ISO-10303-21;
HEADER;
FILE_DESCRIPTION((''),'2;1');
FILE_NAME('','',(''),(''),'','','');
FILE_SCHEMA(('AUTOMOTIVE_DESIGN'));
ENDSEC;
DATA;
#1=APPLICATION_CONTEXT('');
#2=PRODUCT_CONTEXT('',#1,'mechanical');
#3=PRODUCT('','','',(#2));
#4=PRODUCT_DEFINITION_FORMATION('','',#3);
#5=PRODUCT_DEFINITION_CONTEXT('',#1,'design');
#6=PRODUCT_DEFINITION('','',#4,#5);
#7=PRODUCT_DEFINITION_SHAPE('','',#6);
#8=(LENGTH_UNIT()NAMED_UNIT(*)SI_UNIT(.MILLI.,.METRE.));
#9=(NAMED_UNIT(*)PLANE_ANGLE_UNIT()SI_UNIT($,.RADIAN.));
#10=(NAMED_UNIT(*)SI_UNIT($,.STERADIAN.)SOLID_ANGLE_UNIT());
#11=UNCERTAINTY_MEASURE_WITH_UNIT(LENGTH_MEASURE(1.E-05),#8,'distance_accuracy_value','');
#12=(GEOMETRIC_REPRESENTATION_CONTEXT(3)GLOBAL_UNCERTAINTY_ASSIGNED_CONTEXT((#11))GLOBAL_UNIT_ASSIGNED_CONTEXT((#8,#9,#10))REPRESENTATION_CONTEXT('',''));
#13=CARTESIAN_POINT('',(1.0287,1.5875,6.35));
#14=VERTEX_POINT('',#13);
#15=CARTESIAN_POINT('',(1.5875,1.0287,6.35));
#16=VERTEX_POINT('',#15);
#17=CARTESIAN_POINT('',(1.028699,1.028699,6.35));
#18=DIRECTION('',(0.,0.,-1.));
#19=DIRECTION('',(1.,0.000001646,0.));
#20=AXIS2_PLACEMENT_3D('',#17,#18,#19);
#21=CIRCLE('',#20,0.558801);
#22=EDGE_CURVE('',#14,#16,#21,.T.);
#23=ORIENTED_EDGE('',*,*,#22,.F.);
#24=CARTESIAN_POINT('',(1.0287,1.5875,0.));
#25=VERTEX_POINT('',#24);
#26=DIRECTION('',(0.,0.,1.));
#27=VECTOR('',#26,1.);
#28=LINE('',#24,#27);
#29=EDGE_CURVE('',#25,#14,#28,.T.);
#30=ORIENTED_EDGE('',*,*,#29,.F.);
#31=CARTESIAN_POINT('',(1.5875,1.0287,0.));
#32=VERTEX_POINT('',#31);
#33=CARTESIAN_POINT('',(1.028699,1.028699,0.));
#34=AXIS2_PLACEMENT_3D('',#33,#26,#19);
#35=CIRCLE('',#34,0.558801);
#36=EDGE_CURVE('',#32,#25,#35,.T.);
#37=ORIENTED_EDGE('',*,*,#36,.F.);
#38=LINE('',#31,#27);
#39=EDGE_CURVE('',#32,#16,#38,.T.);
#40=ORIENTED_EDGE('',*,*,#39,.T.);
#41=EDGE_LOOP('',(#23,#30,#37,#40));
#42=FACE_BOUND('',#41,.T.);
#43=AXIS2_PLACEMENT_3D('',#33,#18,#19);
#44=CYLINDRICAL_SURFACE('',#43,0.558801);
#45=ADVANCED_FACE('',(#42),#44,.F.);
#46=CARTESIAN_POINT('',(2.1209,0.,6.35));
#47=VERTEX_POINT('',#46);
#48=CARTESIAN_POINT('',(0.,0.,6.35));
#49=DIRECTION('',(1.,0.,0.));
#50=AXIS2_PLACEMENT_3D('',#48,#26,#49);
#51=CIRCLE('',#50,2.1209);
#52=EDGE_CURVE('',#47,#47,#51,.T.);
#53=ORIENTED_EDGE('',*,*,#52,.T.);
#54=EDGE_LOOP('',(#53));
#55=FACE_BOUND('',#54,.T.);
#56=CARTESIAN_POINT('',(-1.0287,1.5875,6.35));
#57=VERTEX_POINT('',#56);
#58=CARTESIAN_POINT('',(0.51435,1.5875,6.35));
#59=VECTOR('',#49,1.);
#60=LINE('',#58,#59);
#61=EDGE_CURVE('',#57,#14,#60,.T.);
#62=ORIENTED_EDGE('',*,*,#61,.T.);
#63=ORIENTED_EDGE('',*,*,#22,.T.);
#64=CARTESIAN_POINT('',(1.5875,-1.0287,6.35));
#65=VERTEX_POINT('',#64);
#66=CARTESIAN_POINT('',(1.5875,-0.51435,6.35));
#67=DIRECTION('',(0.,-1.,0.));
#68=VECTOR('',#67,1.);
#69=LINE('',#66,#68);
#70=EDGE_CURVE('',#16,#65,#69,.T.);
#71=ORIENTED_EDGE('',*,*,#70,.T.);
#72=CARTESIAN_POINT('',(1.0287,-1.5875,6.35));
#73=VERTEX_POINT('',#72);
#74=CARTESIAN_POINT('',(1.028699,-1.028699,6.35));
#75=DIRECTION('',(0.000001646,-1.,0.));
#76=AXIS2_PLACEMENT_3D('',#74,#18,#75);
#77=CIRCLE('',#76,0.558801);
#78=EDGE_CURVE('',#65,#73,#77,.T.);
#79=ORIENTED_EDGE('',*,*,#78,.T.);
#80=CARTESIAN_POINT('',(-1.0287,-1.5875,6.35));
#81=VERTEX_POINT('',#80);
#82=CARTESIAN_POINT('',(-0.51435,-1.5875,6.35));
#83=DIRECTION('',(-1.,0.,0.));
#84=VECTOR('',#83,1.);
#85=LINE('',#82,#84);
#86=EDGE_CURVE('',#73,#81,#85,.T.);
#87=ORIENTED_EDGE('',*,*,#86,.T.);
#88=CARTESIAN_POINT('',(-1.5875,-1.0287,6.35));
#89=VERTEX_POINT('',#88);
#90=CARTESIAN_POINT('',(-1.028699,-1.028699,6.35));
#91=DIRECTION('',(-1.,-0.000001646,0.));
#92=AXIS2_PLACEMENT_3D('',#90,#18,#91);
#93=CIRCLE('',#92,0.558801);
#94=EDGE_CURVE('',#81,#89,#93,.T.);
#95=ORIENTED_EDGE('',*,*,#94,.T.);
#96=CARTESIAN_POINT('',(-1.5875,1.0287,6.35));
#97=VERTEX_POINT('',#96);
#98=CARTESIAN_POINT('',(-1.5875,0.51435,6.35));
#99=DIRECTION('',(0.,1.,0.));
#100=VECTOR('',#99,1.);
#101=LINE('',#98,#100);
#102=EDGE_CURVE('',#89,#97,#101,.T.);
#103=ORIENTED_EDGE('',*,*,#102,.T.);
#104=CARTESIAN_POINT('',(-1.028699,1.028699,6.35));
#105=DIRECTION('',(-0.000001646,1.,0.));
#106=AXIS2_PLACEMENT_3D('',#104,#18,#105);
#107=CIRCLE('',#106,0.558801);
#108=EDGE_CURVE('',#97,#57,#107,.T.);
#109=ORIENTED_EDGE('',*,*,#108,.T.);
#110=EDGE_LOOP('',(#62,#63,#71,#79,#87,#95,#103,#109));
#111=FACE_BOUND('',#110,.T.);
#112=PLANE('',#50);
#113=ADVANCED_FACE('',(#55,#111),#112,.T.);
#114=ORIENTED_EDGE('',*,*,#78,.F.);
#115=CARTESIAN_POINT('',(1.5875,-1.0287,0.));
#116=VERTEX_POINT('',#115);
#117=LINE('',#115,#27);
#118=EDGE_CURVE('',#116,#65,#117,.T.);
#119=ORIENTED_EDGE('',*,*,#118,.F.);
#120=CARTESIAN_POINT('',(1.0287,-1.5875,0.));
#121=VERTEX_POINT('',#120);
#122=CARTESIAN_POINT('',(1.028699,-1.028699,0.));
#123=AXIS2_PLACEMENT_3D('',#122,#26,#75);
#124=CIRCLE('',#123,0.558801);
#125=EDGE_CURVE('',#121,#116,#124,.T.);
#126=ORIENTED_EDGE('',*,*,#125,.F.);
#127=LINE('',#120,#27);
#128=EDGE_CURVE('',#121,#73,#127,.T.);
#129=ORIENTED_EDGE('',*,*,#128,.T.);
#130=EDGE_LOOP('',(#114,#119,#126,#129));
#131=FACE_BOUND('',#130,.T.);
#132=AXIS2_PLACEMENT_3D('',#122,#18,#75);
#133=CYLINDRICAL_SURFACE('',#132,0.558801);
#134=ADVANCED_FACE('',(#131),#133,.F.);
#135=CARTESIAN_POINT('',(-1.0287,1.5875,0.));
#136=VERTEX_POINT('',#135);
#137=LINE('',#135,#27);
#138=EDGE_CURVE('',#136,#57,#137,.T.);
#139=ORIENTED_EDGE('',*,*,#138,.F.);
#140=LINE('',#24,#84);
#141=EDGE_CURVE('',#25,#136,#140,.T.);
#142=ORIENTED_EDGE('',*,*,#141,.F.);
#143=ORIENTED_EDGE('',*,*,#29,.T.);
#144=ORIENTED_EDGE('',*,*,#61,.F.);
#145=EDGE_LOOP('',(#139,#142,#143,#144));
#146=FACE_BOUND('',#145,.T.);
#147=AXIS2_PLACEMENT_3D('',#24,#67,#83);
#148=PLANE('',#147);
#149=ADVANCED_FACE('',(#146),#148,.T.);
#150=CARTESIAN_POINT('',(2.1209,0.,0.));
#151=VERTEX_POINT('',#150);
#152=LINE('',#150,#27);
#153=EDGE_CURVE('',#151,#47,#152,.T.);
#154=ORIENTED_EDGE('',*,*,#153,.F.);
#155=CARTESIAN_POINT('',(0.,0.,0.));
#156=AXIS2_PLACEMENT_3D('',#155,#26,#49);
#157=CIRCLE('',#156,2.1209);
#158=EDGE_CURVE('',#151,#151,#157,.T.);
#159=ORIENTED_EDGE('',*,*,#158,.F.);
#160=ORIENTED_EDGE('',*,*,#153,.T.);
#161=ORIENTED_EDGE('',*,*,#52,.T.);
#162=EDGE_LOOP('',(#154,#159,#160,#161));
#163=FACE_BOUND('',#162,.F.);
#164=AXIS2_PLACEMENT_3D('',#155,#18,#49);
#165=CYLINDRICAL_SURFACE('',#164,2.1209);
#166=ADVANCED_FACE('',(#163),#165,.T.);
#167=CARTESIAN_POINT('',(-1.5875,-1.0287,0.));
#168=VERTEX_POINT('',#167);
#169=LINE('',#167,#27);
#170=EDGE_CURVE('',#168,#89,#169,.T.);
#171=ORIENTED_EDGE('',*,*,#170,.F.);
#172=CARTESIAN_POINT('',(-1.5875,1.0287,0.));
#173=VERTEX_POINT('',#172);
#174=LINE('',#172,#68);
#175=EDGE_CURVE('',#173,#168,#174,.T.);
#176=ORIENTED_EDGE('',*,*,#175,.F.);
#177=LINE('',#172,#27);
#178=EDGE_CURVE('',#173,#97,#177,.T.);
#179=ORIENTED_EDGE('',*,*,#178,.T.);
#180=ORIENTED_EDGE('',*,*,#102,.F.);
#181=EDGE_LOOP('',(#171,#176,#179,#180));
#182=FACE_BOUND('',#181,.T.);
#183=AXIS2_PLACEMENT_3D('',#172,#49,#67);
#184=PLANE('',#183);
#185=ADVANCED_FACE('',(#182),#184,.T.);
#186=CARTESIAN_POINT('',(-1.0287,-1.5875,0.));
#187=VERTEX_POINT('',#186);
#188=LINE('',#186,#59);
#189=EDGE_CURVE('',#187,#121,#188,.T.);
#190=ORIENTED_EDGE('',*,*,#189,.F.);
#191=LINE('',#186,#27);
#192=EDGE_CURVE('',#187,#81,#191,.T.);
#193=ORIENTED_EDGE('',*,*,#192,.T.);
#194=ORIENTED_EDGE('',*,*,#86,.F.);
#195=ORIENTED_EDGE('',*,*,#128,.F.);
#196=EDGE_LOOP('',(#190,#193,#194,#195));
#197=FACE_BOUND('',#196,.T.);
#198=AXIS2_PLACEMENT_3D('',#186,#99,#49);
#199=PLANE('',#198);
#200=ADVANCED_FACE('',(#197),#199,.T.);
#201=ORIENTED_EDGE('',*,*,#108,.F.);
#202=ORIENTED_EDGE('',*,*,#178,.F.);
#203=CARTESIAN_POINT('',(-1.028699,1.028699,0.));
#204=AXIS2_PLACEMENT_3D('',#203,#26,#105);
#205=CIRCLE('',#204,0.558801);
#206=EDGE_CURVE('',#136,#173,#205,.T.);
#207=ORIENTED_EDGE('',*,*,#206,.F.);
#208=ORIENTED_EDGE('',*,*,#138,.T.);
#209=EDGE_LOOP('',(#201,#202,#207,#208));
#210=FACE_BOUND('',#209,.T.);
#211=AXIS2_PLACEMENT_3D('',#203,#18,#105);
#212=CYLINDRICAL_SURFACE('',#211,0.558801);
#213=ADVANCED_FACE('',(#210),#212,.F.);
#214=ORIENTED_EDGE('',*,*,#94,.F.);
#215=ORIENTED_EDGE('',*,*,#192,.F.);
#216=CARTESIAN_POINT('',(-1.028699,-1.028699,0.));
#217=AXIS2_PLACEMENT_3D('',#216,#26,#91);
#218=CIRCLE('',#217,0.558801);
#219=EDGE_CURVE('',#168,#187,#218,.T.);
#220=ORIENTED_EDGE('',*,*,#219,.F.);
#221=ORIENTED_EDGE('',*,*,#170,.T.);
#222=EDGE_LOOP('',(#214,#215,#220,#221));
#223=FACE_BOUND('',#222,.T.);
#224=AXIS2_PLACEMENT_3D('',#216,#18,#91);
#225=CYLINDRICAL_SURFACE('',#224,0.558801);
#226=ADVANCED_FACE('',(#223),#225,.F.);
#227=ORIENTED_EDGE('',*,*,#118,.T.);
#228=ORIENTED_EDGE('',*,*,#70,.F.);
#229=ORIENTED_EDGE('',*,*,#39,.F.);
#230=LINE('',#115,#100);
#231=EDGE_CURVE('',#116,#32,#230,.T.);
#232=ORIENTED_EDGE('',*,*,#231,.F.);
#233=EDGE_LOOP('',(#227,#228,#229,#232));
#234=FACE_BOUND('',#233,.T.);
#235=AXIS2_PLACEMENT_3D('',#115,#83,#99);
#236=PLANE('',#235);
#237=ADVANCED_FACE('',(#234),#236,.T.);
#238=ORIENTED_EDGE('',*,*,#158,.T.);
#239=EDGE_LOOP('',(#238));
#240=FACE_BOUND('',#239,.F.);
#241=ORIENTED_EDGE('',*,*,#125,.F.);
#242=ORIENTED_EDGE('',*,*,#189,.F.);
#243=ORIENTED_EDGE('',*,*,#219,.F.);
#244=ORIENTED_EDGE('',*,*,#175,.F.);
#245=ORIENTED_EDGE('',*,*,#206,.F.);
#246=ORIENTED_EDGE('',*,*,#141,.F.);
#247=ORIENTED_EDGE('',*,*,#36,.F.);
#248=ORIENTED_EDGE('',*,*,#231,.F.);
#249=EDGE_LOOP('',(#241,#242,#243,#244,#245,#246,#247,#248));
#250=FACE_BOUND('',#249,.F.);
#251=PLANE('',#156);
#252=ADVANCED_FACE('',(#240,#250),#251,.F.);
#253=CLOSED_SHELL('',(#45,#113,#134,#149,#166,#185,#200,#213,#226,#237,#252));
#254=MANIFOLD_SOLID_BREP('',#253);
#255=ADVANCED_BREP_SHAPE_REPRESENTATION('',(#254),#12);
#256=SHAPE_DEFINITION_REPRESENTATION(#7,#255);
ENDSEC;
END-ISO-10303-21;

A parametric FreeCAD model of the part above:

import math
import FreeCAD as App
import Part
import Sketcher
Q = App.Units.Quantity

doc = App.newDocument("Part")
body = doc.addObject("PartDesign::Body", "Body")

# Sketch on XY plane
sketch1 = body.newObject("Sketcher::SketchObject", "Sketch")
sketch1.AttachmentSupport = (doc.getObject("XY_Plane"), [""])
sketch1.MapMode = "FlatFace"
sketch1.addGeometry(Part.Circle(App.Vector(0, 0, 0), App.Vector(0, 0, 1), 2.1), False)
sketch1.addConstraint([
    Sketcher.Constraint("Coincident", 0, 3, -1, 1),
    Sketcher.Constraint("Diameter", 0, Q("0.167 in")),
])
pad1 = body.newObject("PartDesign::Pad", "Pad")
pad1.Profile = sketch1
pad1.Length = Q("0.25 in")

# Sketch on XY plane
sketch2 = body.newObject("Sketcher::SketchObject", "Sketch001")
sketch2.AttachmentSupport = (doc.getObject("XY_Plane"), [""])
sketch2.MapMode = "FlatFace"
sketch2.addGeometry([
    Part.LineSegment(App.Vector(1, 1.6, 0), App.Vector(-1, 1.6, 0)),  # 0
    Part.ArcOfCircle(Part.Circle(App.Vector(-1, 1, 0), App.Vector(0, 0, 1), 0.6), math.radians(90), math.radians(180)),  # 1
    Part.LineSegment(App.Vector(-1.6, 1, 0), App.Vector(-1.6, -1, 0)),  # 2
    Part.ArcOfCircle(Part.Circle(App.Vector(-1, -1, 0), App.Vector(0, 0, 1), 0.6), math.radians(-180), math.radians(-90)),  # 3
    Part.LineSegment(App.Vector(-1, -1.6, 0), App.Vector(1, -1.6, 0)),  # 4
    Part.ArcOfCircle(Part.Circle(App.Vector(1, -1, 0), App.Vector(0, 0, 1), 0.6), math.radians(-90), math.radians(0)),  # 5
    Part.LineSegment(App.Vector(1.6, -1, 0), App.Vector(1.6, 1, 0)),  # 6
    Part.ArcOfCircle(Part.Circle(App.Vector(1, 1, 0), App.Vector(0, 0, 1), 0.6), math.radians(0), math.radians(90)),  # 7
], False)
sketch2.addConstraint([
    Sketcher.Constraint("Tangent", 0, 2, 1, 1),
    Sketcher.Constraint("Tangent", 1, 2, 2, 1),
    Sketcher.Constraint("Tangent", 2, 2, 3, 1),
    Sketcher.Constraint("Tangent", 3, 2, 4, 1),
    Sketcher.Constraint("Tangent", 4, 2, 5, 1),
    Sketcher.Constraint("Tangent", 5, 2, 6, 1),
    Sketcher.Constraint("Tangent", 6, 2, 7, 1),
    Sketcher.Constraint("Tangent", 7, 2, 0, 1),
    Sketcher.Constraint("Horizontal", 0),
    Sketcher.Constraint("Vertical", 2),
    Sketcher.Constraint("Horizontal", 4),
    Sketcher.Constraint("Vertical", 6),
    Sketcher.Constraint("Equal", 1, 3),
    Sketcher.Constraint("Equal", 3, 5),
    Sketcher.Constraint("Equal", 5, 7),
    Sketcher.Constraint("Symmetric", 1, 3, 5, 3, -1, 1),
    Sketcher.Constraint("Equal", 4, 2),
    Sketcher.Constraint("Radius", 1, Q("0.022 in")),
    Sketcher.Constraint("DistanceX", 0, 2, 0, 1, Q("0.081 in")),
])
pocket1 = body.newObject("PartDesign::Pocket", "Pocket")
pocket1.Profile = sketch2
pocket1.Length = Q("1 in")
pocket1.Reversed = True

doc.recompute()
